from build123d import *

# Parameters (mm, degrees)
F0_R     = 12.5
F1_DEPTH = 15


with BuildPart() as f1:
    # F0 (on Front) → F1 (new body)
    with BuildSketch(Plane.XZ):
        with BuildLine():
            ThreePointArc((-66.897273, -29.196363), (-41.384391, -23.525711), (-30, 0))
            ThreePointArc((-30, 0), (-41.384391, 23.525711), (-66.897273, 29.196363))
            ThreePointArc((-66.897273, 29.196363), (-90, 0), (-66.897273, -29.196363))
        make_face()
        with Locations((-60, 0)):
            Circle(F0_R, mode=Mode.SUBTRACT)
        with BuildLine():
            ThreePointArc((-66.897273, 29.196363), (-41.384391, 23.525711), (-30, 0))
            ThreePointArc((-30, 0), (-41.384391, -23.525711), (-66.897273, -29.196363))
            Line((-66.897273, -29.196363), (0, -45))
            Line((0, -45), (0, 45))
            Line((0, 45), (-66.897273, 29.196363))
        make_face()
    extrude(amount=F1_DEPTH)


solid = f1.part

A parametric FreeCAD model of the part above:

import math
import FreeCAD as App
import Part
import Sketcher
Q = App.Units.Quantity

doc = App.newDocument("Part")
body = doc.addObject("PartDesign::Body", "Body")

# Sketch on XZ plane
sketch1 = body.newObject("Sketcher::SketchObject", "Sketch")
sketch1.AttachmentSupport = (doc.getObject("XZ_Plane"), [""])
sketch1.MapMode = "FlatFace"
sketch1.addGeometry(Part.ArcOfCircle(Part.Circle(App.Vector(-60, 0, 0), App.Vector(0, 0, 1), 30), math.radians(103), math.radians(257)), False)
sketch1.addGeometry(Part.LineSegment(App.Vector(-67, -29, 0), App.Vector(0, -45, 0)), False)
sketch1.addGeometry(Part.LineSegment(App.Vector(0, -45, 0), App.Vector(0, 45, 0)), False)
sketch1.addGeometry(Part.LineSegment(App.Vector(0, 45, 0), App.Vector(-67, 29, 0)), False)
sketch1.addGeometry(Part.Circle(App.Vector(-60, 0, 0), App.Vector(0, 0, 1), 12), False)
sketch1.addConstraint(Sketcher.Constraint("Tangent", 0, 2, 1, 1))
sketch1.addConstraint(Sketcher.Constraint("Coincident", 1, 2, 2, 1))
sketch1.addConstraint(Sketcher.Constraint("Coincident", 2, 2, 3, 1))
sketch1.addConstraint(Sketcher.Constraint("Tangent", 3, 2, 0, 1))
sketch1.addConstraint(Sketcher.Constraint("Vertical", 2))
sketch1.addConstraint(Sketcher.Constraint("Coincident", 4, 3, 0, 3))
sketch1.addConstraint(Sketcher.Constraint("Symmetric", 1, 2, 2, 2, -1, 1))
sketch1.addConstraint(Sketcher.Constraint("PointOnObject", 0, 3, -1))
sketch1.addConstraint(Sketcher.Constraint("Diameter", 4, Q("25 mm")))
sketch1.addConstraint(Sketcher.Constraint("Radius", 0, Q("30 mm")))
sketch1.addConstraint(Sketcher.Constraint("DistanceY", 2, 1, 2, 2, Q("90 mm")))
sketch1.addConstraint(Sketcher.Constraint("DistanceX", 0, 3, -1, 1, Q("60 mm")))
pad1 = body.newObject("PartDesign::Pad", "Pad")
pad1.Profile = sketch1
pad1.Length = 15

doc.recompute()
